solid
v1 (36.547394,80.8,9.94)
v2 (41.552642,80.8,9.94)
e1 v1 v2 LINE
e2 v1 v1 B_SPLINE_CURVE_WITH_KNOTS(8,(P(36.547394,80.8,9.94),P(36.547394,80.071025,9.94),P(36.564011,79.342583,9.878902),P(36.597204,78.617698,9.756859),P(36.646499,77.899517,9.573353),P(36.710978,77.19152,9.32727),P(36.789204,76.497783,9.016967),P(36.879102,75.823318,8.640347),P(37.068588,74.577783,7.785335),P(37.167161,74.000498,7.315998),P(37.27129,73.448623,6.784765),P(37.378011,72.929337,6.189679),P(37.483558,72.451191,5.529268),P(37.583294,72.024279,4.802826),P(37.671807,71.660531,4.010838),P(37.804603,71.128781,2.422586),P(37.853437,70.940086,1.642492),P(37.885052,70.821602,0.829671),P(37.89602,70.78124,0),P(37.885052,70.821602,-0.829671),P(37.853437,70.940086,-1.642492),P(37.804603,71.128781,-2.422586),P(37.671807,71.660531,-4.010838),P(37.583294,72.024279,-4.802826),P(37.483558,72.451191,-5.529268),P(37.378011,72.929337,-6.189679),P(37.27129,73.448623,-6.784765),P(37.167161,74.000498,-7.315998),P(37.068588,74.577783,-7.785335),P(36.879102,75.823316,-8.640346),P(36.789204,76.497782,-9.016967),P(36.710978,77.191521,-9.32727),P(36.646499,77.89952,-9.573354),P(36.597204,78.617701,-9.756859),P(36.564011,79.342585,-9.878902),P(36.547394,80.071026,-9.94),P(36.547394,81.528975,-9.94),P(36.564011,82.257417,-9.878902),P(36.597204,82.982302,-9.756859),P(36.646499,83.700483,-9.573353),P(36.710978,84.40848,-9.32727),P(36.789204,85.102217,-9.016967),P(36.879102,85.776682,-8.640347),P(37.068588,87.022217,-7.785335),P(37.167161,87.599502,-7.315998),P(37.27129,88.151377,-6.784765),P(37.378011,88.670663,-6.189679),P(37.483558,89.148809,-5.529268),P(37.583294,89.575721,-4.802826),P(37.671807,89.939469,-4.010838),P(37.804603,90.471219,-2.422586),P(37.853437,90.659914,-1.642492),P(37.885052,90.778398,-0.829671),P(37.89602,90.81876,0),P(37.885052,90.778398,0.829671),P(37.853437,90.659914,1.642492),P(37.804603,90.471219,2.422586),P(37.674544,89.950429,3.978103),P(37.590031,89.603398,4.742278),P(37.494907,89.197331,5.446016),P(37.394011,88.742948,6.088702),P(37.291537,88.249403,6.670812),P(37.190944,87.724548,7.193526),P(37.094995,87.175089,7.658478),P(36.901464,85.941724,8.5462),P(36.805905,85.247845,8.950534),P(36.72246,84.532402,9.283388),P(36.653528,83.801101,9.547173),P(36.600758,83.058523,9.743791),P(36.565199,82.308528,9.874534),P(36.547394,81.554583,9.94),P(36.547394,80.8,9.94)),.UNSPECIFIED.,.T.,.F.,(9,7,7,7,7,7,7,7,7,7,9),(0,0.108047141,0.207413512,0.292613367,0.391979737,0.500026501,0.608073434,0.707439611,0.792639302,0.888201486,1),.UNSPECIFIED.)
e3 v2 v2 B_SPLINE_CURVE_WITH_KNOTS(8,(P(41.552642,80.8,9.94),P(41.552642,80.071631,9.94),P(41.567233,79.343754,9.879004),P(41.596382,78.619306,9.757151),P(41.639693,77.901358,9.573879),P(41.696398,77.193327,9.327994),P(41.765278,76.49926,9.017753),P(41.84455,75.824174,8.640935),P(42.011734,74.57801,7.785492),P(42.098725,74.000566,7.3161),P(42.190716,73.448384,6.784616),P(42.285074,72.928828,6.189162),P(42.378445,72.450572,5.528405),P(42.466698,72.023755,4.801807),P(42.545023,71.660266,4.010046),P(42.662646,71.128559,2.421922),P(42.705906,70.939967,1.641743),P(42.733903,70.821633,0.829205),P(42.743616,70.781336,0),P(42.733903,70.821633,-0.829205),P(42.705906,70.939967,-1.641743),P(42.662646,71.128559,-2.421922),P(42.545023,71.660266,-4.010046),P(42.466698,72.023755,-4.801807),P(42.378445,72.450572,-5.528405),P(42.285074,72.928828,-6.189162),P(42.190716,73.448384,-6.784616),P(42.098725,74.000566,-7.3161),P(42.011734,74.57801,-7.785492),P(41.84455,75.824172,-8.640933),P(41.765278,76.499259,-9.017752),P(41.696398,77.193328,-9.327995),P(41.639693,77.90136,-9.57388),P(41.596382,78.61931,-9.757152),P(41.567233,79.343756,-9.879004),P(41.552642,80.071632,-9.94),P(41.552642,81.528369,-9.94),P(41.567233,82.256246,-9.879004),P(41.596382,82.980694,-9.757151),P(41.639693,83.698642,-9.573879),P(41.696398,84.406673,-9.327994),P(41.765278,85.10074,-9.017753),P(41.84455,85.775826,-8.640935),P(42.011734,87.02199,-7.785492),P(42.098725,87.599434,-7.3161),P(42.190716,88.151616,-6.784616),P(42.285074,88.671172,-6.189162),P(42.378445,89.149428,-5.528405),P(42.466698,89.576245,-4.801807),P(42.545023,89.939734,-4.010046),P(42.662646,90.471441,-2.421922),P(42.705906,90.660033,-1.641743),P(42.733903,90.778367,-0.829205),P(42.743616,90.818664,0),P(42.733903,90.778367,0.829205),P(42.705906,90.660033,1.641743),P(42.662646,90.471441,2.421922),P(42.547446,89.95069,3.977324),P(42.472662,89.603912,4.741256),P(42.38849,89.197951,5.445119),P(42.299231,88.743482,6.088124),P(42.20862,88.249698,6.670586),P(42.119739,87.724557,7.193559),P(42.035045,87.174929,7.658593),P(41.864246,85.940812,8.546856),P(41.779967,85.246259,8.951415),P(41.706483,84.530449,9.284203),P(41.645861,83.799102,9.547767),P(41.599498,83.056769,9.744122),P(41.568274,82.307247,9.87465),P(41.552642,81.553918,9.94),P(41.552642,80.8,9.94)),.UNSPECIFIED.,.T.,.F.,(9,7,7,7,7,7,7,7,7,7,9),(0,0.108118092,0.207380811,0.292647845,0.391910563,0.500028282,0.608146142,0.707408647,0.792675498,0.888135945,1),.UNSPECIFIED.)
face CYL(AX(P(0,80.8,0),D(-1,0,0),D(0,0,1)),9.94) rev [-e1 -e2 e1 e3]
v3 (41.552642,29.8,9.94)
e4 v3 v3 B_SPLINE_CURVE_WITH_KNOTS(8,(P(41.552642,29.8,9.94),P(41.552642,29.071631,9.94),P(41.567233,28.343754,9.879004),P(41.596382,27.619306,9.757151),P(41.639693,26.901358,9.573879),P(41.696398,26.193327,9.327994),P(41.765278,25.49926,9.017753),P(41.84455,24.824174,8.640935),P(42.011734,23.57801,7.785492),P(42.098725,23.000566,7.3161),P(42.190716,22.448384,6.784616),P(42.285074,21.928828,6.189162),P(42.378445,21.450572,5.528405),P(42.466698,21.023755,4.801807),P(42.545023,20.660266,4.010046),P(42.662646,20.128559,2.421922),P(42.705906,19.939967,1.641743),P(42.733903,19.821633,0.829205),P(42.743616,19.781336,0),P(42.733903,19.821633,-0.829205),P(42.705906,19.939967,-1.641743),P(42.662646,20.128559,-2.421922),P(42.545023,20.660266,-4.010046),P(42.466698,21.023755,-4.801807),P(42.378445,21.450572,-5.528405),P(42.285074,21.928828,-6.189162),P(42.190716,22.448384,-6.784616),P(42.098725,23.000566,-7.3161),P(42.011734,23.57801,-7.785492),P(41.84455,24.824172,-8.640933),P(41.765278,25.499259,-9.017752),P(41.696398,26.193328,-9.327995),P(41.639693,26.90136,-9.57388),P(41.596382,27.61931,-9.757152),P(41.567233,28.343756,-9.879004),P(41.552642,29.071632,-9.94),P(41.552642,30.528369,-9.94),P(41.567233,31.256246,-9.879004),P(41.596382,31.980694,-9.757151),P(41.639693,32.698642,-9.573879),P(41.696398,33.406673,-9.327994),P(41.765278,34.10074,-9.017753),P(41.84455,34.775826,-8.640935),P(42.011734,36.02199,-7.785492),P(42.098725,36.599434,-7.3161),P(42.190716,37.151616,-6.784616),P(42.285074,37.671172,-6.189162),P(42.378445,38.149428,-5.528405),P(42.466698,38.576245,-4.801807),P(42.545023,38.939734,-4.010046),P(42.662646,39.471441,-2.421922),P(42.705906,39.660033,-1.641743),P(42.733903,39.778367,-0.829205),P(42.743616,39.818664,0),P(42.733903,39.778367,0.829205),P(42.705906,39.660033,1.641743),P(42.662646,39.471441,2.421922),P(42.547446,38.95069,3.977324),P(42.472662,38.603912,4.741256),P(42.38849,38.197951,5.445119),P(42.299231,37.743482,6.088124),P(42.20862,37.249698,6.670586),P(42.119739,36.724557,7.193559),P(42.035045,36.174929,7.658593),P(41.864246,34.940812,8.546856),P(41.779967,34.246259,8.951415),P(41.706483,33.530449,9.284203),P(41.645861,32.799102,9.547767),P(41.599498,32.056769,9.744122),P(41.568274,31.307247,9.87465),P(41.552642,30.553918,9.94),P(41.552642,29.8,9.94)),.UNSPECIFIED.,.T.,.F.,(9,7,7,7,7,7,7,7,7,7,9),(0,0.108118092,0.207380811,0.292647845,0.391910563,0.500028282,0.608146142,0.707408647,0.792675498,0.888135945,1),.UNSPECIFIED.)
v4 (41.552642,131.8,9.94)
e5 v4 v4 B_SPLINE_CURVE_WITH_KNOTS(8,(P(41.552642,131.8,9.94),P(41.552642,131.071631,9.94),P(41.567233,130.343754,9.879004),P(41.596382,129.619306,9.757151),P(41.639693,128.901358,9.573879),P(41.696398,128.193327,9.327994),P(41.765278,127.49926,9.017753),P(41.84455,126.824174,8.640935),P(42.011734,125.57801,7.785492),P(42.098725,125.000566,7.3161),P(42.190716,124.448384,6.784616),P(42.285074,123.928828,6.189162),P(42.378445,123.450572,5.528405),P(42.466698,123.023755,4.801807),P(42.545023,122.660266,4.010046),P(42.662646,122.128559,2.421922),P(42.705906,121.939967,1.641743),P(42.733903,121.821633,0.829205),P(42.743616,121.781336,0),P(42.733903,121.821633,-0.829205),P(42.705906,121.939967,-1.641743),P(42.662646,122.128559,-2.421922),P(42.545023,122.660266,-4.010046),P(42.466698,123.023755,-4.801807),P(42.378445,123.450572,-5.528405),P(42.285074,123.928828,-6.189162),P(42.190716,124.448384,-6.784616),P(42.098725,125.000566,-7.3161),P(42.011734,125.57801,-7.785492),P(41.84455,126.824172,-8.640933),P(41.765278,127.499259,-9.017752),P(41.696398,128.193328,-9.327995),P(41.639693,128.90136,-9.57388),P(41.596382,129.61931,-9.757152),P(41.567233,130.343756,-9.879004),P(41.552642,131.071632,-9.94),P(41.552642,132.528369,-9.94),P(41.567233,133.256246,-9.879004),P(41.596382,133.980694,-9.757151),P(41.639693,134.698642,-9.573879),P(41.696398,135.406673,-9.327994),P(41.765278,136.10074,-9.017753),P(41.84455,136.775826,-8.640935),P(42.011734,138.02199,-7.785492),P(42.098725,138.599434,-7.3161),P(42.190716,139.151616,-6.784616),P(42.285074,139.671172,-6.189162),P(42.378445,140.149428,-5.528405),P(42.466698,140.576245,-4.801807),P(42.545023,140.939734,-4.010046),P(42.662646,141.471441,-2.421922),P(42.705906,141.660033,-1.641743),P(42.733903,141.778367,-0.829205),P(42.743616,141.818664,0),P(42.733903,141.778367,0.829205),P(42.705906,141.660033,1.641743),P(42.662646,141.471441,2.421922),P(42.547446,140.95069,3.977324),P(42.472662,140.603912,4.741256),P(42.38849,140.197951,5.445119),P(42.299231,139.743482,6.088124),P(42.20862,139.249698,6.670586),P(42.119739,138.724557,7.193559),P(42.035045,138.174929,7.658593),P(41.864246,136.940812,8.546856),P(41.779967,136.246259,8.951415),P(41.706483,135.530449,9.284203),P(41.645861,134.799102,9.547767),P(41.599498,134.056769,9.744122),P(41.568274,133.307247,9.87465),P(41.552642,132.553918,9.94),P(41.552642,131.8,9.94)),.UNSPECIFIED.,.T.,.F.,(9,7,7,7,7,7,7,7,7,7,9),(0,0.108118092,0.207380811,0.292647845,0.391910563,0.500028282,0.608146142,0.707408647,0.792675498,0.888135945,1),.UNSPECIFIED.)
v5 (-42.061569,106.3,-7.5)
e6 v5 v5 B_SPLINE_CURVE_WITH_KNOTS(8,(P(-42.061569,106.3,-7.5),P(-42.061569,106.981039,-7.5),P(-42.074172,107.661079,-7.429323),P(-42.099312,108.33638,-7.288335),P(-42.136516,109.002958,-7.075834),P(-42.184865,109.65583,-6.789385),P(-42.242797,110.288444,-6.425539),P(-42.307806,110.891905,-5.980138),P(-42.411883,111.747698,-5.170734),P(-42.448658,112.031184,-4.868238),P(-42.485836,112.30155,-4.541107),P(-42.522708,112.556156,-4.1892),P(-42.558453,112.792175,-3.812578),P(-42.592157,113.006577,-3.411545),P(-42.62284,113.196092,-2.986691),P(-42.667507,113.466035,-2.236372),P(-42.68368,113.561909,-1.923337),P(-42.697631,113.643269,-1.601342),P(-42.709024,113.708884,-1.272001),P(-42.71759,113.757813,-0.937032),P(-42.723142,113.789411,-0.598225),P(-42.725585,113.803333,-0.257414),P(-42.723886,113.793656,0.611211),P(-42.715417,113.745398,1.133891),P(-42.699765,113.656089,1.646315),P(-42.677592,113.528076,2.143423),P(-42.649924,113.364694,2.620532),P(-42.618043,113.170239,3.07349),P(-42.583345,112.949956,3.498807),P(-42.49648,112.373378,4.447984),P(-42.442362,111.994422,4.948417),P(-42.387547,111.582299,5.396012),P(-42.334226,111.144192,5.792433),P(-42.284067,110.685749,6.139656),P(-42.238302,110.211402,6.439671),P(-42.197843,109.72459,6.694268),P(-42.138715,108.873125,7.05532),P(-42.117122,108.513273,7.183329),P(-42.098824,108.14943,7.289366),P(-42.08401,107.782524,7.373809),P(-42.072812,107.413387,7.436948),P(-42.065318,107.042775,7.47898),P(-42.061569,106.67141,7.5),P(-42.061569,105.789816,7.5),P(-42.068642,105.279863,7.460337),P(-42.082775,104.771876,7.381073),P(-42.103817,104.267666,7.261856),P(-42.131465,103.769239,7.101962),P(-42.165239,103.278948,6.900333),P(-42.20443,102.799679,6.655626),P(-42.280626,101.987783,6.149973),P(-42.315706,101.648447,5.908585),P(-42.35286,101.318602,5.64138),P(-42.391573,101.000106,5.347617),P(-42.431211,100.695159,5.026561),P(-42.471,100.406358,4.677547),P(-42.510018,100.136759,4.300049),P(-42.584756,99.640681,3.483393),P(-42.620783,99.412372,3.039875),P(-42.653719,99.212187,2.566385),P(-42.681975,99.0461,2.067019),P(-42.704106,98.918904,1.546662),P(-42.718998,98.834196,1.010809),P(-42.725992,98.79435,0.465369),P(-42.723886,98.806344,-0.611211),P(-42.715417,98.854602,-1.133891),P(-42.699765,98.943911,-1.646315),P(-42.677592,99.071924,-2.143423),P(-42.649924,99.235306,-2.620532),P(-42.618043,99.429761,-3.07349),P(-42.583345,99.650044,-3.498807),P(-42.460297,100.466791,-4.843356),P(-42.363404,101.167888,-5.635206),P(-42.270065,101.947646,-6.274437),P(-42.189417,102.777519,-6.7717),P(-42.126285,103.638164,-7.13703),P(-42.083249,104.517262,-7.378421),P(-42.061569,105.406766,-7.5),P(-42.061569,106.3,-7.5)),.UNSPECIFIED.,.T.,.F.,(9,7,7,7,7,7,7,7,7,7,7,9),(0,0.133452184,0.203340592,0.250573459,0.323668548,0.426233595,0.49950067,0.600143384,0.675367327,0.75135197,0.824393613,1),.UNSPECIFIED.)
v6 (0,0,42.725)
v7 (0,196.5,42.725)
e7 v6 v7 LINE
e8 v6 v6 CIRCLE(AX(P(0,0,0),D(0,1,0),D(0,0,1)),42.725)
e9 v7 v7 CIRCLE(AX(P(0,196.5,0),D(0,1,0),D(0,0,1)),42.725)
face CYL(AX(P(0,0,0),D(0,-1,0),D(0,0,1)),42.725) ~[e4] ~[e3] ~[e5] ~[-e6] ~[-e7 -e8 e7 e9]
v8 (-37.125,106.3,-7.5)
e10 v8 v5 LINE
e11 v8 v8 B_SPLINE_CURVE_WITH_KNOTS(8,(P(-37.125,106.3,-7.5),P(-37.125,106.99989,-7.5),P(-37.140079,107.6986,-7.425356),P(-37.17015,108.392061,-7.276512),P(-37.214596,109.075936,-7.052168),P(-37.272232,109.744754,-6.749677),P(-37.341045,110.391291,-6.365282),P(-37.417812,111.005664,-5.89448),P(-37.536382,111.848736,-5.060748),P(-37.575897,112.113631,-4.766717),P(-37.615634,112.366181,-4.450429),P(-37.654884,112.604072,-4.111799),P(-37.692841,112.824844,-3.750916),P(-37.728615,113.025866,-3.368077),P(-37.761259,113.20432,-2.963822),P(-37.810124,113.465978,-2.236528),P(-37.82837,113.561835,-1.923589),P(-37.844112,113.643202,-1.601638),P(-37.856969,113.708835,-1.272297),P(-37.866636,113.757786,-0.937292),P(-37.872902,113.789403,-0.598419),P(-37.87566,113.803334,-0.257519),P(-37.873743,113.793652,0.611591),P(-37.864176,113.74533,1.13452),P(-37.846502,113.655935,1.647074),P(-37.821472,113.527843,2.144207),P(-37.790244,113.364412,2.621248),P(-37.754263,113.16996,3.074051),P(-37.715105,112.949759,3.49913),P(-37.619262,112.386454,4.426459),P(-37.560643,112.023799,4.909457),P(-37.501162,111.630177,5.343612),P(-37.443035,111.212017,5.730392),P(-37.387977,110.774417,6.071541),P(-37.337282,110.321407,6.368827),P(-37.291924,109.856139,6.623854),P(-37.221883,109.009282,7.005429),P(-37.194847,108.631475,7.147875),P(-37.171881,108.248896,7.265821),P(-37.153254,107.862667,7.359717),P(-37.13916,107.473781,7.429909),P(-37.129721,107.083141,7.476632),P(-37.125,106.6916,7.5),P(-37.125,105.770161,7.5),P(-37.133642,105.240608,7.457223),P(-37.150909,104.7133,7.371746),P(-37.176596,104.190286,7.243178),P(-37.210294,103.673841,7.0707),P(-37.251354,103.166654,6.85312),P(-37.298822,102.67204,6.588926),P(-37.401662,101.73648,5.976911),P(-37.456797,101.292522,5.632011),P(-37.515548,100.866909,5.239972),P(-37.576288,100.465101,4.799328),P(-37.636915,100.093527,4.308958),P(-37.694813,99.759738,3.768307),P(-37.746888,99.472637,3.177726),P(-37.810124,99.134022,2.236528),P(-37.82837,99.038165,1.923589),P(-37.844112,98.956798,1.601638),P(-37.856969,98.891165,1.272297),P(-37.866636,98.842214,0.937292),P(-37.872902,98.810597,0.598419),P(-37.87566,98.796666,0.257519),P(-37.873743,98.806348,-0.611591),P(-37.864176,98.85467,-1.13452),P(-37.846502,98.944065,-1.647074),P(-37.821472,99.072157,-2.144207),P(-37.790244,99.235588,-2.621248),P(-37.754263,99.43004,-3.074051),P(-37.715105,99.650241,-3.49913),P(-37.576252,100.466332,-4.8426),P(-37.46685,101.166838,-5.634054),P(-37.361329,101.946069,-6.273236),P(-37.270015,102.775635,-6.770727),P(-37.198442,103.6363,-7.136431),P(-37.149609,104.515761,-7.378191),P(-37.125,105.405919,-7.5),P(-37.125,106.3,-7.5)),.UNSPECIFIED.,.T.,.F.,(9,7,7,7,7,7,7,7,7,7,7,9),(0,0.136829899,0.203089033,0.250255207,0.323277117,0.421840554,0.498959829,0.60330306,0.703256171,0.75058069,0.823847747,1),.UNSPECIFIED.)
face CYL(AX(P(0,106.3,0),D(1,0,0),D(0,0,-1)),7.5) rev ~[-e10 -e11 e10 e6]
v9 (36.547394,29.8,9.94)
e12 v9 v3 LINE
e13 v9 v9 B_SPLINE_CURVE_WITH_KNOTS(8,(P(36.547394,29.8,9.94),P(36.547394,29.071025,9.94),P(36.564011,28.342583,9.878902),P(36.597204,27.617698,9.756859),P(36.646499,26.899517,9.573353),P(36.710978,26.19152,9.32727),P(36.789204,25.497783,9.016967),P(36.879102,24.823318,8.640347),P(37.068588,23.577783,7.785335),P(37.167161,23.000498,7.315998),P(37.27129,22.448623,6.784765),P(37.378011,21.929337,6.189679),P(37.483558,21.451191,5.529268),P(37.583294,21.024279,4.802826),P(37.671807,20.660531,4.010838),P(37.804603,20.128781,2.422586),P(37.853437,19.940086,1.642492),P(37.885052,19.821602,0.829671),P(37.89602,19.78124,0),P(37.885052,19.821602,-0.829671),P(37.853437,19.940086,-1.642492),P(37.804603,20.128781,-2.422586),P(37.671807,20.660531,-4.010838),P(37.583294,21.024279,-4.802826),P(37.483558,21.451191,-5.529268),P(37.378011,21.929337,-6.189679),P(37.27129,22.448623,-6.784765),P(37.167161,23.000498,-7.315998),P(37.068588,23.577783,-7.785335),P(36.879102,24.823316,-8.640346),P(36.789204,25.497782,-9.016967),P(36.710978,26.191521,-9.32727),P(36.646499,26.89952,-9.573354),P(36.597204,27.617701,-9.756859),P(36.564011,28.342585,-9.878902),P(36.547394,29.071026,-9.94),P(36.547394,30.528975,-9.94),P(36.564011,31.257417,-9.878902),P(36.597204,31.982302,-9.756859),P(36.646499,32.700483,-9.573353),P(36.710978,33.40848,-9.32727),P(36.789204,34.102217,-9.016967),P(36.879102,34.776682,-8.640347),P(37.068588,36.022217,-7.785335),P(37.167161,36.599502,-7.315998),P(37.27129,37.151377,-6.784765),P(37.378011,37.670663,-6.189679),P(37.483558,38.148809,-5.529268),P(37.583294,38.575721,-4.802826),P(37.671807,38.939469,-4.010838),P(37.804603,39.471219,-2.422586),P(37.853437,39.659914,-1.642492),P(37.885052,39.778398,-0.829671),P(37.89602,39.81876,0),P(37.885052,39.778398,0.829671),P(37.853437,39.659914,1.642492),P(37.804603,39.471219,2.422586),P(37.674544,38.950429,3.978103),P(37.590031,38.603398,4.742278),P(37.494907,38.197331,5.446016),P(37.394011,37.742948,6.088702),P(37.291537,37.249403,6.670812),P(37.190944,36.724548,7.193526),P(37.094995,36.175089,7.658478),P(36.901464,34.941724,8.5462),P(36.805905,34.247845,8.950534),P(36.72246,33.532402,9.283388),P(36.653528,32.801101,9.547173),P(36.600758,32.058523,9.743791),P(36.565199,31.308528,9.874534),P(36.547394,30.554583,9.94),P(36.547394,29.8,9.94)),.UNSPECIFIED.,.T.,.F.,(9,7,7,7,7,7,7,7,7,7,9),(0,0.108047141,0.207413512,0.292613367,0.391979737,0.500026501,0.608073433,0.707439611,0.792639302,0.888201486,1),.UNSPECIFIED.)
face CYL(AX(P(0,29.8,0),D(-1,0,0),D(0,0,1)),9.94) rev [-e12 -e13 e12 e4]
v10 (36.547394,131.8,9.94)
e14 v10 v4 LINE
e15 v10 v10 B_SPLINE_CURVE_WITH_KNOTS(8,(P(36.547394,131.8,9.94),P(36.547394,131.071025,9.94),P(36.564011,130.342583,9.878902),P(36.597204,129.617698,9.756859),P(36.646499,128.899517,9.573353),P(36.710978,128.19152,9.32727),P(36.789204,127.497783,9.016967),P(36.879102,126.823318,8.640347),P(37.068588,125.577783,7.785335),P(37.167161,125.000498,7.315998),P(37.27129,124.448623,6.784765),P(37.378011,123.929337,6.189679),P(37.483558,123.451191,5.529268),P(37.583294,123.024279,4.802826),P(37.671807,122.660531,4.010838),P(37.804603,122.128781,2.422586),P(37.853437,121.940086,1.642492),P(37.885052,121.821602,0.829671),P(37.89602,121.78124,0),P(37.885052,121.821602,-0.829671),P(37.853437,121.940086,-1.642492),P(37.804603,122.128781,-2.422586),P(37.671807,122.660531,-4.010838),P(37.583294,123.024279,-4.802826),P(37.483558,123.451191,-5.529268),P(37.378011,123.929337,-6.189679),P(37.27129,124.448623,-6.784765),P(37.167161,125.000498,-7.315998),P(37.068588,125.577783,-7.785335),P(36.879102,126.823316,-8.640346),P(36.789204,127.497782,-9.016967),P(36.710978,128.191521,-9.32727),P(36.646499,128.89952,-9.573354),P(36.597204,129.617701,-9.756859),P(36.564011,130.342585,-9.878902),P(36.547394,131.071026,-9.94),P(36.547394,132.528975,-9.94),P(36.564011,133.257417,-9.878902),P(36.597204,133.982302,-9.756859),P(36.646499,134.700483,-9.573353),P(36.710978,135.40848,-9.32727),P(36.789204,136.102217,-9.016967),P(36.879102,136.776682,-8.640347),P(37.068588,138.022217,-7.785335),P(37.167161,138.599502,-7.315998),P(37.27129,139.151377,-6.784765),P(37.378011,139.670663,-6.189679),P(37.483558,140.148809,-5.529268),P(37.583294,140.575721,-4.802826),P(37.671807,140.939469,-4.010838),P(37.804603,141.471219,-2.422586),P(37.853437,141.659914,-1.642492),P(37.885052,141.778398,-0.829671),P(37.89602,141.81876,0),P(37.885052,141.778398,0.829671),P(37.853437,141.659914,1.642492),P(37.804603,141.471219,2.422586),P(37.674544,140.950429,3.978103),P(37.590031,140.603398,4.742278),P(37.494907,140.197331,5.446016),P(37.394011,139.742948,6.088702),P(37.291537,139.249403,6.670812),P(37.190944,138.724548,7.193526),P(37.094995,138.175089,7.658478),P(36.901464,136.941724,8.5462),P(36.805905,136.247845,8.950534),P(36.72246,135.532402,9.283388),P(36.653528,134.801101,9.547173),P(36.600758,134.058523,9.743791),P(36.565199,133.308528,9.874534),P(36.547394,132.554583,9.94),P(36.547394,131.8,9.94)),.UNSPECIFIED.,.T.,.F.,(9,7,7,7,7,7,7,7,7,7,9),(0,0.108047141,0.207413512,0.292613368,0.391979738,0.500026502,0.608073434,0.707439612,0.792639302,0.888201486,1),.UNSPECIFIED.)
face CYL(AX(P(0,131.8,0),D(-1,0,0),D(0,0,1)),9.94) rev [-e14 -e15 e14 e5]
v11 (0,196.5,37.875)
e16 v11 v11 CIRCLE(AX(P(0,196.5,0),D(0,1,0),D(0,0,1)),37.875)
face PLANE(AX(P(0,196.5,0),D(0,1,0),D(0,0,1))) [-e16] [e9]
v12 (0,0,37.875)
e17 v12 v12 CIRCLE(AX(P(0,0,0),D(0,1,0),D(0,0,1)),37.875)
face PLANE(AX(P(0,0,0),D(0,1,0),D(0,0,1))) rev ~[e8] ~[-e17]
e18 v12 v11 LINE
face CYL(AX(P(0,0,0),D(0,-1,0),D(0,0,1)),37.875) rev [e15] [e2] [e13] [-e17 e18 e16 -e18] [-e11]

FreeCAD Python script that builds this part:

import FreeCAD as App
import Part
import Sketcher
Q = App.Units.Quantity

doc = App.newDocument("Part")
params = doc.addObject("Spreadsheet::Sheet", "Params")
for row, (alias, value) in enumerate([
    ("sketch1_diameter", "85.45 mm"),
    ("sketch1_diameter2", "75.75 mm"),
    ("pad1_length", "196.5 mm"),
    ("sketch2_diameter", "19.88 mm"),
    ("sketch3_diameter", "15 mm"),
], start=1):
    params.set(f"A{row}", alias)
    params.set(f"B{row}", "=" + value)
    params.setAlias(f"B{row}", alias)

body = doc.addObject("PartDesign::Body", "Body")

# Sketch on XZ plane
sketch1 = body.newObject("Sketcher::SketchObject", "Sketch")
sketch1.AttachmentSupport = (doc.getObject("XZ_Plane"), [""])
sketch1.MapMode = "FlatFace"
sketch1.addGeometry([
    Part.Circle(App.Vector(0, 0, 0), App.Vector(0, 0, 1), 43),
    Part.Circle(App.Vector(0, 0, 0), App.Vector(0, 0, 1), 38),
], False)
sketch1.addConstraint([
    Sketcher.Constraint("Coincident", 0, 3, -1, 1),
    Sketcher.Constraint("Coincident", 1, 3, -1, 1),
    Sketcher.Constraint("Diameter", 0, Q("85.45 mm")),
    Sketcher.Constraint("Diameter", 1, Q("75.75 mm")),
])
sketch1.setExpression("Constraints[2]", "Params.sketch1_diameter")
sketch1.setExpression("Constraints[3]", "Params.sketch1_diameter2")
pad1 = body.newObject("PartDesign::Pad", "Pad")
pad1.Profile = sketch1
pad1.setExpression("Length", "Params.pad1_length")
pad1.Reversed = True

# Sketch on YZ plane
sketch2 = body.newObject("Sketcher::SketchObject", "Sketch001")
sketch2.AttachmentSupport = (doc.getObject("YZ_Plane"), [""])
sketch2.MapMode = "FlatFace"
sketch2.addGeometry([
    Part.Circle(App.Vector(132, 0, 0), App.Vector(0, 0, 1), 10),
    Part.Circle(App.Vector(81, 0, 0), App.Vector(0, 0, 1), 10),
    Part.Circle(App.Vector(30, 0, 0), App.Vector(0, 0, 1), 10),
], False)
sketch2.addConstraint([
    Sketcher.Constraint("Equal", 0, 1),
    Sketcher.Constraint("Equal", 1, 2),
    Sketcher.Constraint("PointOnObject", 0, 3, -1),
    Sketcher.Constraint("PointOnObject", 1, 3, -1),
    Sketcher.Constraint("PointOnObject", 2, 3, -1),
    Sketcher.Constraint("Diameter", 0, Q("19.88 mm")),
    Sketcher.Constraint("DistanceX", 1, 3, 0, 3, Q("51 mm")),
    Sketcher.Constraint("DistanceX", 2, 3, 1, 3, Q("51 mm")),
    Sketcher.Constraint("DistanceX", -1, 1, 0, 3, Q("131.8 mm")),
])
sketch2.setExpression("Constraints[5]", "Params.sketch2_diameter")
pocket1 = body.newObject("PartDesign::Pocket", "Pocket")
pocket1.Profile = sketch2
pocket1.Type = "ThroughAll"
pocket1.Reversed = True

# Sketch on YZ plane
sketch3 = body.newObject("Sketcher::SketchObject", "Sketch002")
sketch3.AttachmentSupport = (doc.getObject("YZ_Plane"), [""])
sketch3.MapMode = "FlatFace"
sketch3.addGeometry(Part.Circle(App.Vector(106, 0, 0), App.Vector(0, 0, 1), 8), False)
sketch3.addConstraint([
    Sketcher.Constraint("PointOnObject", 0, 3, -1),
    Sketcher.Constraint("Diameter", 0, Q("15 mm")),
    Sketcher.Constraint("DistanceX", -1, 1, 0, 3, Q("106.3 mm")),
])
sketch3.setExpression("Constraints[1]", "Params.sketch3_diameter")
pocket2 = body.newObject("PartDesign::Pocket", "Pocket001")
pocket2.Profile = sketch3
pocket2.Type = "ThroughAll"

doc.recompute()
